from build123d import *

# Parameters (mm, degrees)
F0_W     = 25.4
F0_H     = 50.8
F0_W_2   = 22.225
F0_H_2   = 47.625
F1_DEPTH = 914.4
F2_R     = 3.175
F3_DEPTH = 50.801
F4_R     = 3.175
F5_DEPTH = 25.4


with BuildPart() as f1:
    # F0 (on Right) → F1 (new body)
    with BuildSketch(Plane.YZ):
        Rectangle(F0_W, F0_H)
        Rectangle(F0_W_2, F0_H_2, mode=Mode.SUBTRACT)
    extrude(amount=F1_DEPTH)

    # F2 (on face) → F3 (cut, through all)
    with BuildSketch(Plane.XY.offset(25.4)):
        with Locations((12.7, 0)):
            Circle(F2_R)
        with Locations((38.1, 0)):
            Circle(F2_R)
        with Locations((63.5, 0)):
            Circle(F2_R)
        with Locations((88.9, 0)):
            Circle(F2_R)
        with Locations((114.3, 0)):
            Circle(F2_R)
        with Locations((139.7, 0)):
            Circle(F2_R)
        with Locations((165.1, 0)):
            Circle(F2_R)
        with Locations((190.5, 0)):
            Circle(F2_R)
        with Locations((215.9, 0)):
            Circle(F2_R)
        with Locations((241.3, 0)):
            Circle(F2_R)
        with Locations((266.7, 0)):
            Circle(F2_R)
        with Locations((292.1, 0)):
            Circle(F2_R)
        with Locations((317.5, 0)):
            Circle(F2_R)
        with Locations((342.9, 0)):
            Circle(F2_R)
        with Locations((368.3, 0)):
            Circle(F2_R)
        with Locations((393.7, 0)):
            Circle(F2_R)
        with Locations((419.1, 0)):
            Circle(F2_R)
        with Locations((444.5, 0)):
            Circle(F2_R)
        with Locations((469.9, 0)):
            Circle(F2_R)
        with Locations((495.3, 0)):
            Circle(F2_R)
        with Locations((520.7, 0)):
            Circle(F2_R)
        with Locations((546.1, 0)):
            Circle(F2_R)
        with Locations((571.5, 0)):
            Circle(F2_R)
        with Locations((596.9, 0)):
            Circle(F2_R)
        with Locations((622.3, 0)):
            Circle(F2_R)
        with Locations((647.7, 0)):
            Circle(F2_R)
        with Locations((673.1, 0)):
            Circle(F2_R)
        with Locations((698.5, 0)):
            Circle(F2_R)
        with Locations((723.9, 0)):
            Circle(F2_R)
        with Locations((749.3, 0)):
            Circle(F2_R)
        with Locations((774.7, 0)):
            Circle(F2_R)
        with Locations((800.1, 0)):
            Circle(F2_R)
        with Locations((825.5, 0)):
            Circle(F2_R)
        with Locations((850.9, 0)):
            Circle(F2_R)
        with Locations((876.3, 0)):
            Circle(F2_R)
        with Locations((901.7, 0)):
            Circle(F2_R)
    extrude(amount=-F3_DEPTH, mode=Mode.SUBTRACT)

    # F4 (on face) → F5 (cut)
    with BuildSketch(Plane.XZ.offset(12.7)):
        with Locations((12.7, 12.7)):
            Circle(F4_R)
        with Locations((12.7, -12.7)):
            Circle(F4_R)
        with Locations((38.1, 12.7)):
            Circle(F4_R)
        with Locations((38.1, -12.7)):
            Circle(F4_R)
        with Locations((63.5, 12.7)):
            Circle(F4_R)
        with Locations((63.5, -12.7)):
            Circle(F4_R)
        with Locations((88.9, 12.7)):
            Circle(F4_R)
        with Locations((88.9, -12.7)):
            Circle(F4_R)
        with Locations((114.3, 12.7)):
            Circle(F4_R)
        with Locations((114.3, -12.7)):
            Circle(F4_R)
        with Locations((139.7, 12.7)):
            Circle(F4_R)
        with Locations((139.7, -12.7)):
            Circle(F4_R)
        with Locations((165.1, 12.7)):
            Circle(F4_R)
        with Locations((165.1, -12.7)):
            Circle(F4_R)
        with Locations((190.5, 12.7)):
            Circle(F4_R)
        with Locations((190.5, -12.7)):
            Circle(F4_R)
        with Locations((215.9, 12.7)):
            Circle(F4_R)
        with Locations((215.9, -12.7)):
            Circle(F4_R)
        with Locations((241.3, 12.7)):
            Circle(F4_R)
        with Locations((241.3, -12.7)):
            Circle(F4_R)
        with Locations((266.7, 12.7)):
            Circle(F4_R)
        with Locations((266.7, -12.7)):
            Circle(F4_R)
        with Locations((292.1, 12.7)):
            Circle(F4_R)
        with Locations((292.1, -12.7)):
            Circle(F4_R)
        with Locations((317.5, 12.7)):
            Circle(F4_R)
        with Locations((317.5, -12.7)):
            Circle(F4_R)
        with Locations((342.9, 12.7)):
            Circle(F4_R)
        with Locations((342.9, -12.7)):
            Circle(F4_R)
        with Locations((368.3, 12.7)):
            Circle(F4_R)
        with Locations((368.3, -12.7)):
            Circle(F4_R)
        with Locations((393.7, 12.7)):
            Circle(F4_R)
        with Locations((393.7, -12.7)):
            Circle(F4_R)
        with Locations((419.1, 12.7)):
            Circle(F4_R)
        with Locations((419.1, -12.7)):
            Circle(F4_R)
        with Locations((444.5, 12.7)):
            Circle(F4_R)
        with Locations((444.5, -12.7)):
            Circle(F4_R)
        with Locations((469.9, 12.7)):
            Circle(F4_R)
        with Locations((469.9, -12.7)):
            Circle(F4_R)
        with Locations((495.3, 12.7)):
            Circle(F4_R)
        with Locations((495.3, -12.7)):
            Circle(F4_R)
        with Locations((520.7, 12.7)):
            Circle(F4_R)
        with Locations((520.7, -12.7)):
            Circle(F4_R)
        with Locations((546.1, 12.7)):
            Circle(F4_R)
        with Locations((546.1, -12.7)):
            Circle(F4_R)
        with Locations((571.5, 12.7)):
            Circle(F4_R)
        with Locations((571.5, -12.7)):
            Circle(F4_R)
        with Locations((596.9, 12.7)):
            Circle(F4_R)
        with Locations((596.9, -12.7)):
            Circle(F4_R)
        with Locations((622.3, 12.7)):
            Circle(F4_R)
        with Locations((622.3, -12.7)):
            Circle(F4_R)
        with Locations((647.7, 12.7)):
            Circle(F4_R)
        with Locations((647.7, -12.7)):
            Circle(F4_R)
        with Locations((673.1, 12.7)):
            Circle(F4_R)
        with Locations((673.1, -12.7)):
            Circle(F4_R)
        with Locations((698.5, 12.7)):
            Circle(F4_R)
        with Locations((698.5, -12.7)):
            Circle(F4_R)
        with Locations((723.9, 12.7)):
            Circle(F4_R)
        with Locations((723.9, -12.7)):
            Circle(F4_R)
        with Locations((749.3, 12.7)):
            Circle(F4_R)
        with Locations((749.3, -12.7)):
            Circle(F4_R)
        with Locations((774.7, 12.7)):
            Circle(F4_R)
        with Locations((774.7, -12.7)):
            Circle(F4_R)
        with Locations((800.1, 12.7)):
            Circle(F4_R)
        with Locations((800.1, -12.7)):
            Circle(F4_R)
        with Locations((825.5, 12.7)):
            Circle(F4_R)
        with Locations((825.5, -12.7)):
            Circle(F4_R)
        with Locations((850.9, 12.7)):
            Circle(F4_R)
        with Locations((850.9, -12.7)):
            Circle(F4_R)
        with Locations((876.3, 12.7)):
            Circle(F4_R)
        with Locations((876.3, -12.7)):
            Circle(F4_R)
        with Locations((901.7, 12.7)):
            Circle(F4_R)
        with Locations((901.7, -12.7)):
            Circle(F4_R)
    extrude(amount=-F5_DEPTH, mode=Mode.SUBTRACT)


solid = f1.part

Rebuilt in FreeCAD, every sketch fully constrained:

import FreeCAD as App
import Part
import Sketcher

V = App.Vector
Q = App.Units.Quantity


def add_polygon(sketch, points):
    """Adds a closed chain of lines whose ends are joined by coincident constraints."""
    first, n = sketch.GeometryCount, len(points)
    for a, b in zip(points, points[1:] + points[:1]):
        sketch.addGeometry(Part.LineSegment(App.Vector(*a, 0), App.Vector(*b, 0)), False)
    for i in range(n):
        sketch.addConstraint(Sketcher.Constraint("Coincident", first + i, 2, first + (i + 1) % n, 1))

doc = App.newDocument("Part")
body = doc.addObject("PartDesign::Body", "Body")

# Sketch on YZ plane
sketch1 = doc.addObject("Sketcher::SketchObject", "Sketch")
body.addObject(sketch1)
sketch1.AttachmentSupport = (doc.YZ_Plane, [""])
sketch1.MapMode = "FlatFace"
add_polygon(sketch1, [(-12.7, 25.4), (-12.7, -25.4), (12.7, -25.4), (12.7, 25.4)])  # lines 0-3
add_polygon(sketch1, [(11.1125, -23.8125), (-11.1125, -23.8125), (-11.1125, 23.8125), (11.1125, 23.8125)])  # lines 4-7
sketch1.addConstraint([
    Sketcher.Constraint("Vertical", 0),
    Sketcher.Constraint("Horizontal", 1),
    Sketcher.Constraint("Vertical", 2),
    Sketcher.Constraint("Horizontal", 3),
    Sketcher.Constraint("Horizontal", 4),
    Sketcher.Constraint("Vertical", 5),
    Sketcher.Constraint("Horizontal", 6),
    Sketcher.Constraint("Vertical", 7),
    Sketcher.Constraint("Symmetric", 0, 2, 2, 2, -1, 1),
    Sketcher.Constraint("Symmetric", 4, 2, 6, 2, -1, 1),
    Sketcher.Constraint("DistanceX", 1, 1, 1, 2, Q("1 in")),
    Sketcher.Constraint("DistanceY", 0, 2, 0, 1, Q("2 in")),
    Sketcher.Constraint("DistanceX", 4, 2, 4, 1, Q("0.875 in")),
    Sketcher.Constraint("DistanceY", 5, 1, 5, 2, Q("1.875 in")),
])
pad1 = doc.addObject("PartDesign::Pad", "Pad")
body.addObject(pad1)
pad1.Profile = sketch1
pad1.Length = Q("36 in")

# Sketch on XY plane
sketch2 = doc.addObject("Sketcher::SketchObject", "Sketch001")
body.addObject(sketch2)
sketch2.AttachmentSupport = (doc.XY_Plane, [""])
sketch2.MapMode = "FlatFace"
sketch2.AttachmentOffset = App.Placement(V(0, 0, 1 * 25.4), App.Rotation())
sketch2.addGeometry([
    Part.Circle(V(12.7, 0, 0), V(0, 0, 1), 3.175),  # 0
    Part.Circle(V(38.1, 0, 0), V(0, 0, 1), 3.175),  # 1
    Part.Circle(V(63.5, 0, 0), V(0, 0, 1), 3.175),  # 2
    Part.Circle(V(88.9, 0, 0), V(0, 0, 1), 3.175),  # 3
    Part.Circle(V(114.3, 0, 0), V(0, 0, 1), 3.175),  # 4
    Part.Circle(V(139.7, 0, 0), V(0, 0, 1), 3.175),  # 5
    Part.Circle(V(165.1, 0, 0), V(0, 0, 1), 3.175),  # 6
    Part.Circle(V(190.5, 0, 0), V(0, 0, 1), 3.175),  # 7
    Part.Circle(V(215.9, 0, 0), V(0, 0, 1), 3.175),  # 8
    Part.Circle(V(241.3, 0, 0), V(0, 0, 1), 3.175),  # 9
    Part.Circle(V(266.7, 0, 0), V(0, 0, 1), 3.175),  # 10
    Part.Circle(V(292.1, 0, 0), V(0, 0, 1), 3.175),  # 11
    Part.Circle(V(317.5, 0, 0), V(0, 0, 1), 3.175),  # 12
    Part.Circle(V(342.9, 0, 0), V(0, 0, 1), 3.175),  # 13
    Part.Circle(V(368.3, 0, 0), V(0, 0, 1), 3.175),  # 14
    Part.Circle(V(393.7, 0, 0), V(0, 0, 1), 3.175),  # 15
    Part.Circle(V(419.1, 0, 0), V(0, 0, 1), 3.175),  # 16
    Part.Circle(V(444.5, 0, 0), V(0, 0, 1), 3.175),  # 17
    Part.Circle(V(469.9, 0, 0), V(0, 0, 1), 3.175),  # 18
    Part.Circle(V(495.3, 0, 0), V(0, 0, 1), 3.175),  # 19
    Part.Circle(V(520.7, 0, 0), V(0, 0, 1), 3.175),  # 20
    Part.Circle(V(546.1, 0, 0), V(0, 0, 1), 3.175),  # 21
    Part.Circle(V(571.5, 0, 0), V(0, 0, 1), 3.175),  # 22
    Part.Circle(V(596.9, 0, 0), V(0, 0, 1), 3.175),  # 23
    Part.Circle(V(622.3, 0, 0), V(0, 0, 1), 3.175),  # 24
    Part.Circle(V(647.7, 0, 0), V(0, 0, 1), 3.175),  # 25
    Part.Circle(V(673.1, 0, 0), V(0, 0, 1), 3.175),  # 26
    Part.Circle(V(698.5, 0, 0), V(0, 0, 1), 3.175),  # 27
    Part.Circle(V(723.9, 0, 0), V(0, 0, 1), 3.175),  # 28
    Part.Circle(V(749.3, 0, 0), V(0, 0, 1), 3.175),  # 29
    Part.Circle(V(774.7, 0, 0), V(0, 0, 1), 3.175),  # 30
    Part.Circle(V(800.1, 0, 0), V(0, 0, 1), 3.175),  # 31
    Part.Circle(V(825.5, 0, 0), V(0, 0, 1), 3.175),  # 32
    Part.Circle(V(850.9, 0, 0), V(0, 0, 1), 3.175),  # 33
    Part.Circle(V(876.3, 0, 0), V(0, 0, 1), 3.175),  # 34
    Part.Circle(V(901.7, 0, 0), V(0, 0, 1), 3.175),  # 35
], False)
sketch2.addConstraint([
    Sketcher.Constraint("Equal", 0, 1),
    Sketcher.Constraint("Equal", 1, 2),
    Sketcher.Constraint("Equal", 2, 3),
    Sketcher.Constraint("Equal", 3, 4),
    Sketcher.Constraint("Equal", 4, 5),
    Sketcher.Constraint("Equal", 5, 6),
    Sketcher.Constraint("Equal", 6, 7),
    Sketcher.Constraint("Equal", 7, 8),
    Sketcher.Constraint("Equal", 8, 9),
    Sketcher.Constraint("Equal", 9, 10),
    Sketcher.Constraint("Equal", 10, 11),
    Sketcher.Constraint("Equal", 11, 12),
    Sketcher.Constraint("Equal", 12, 13),
    Sketcher.Constraint("Equal", 13, 14),
    Sketcher.Constraint("Equal", 14, 15),
    Sketcher.Constraint("Equal", 15, 16),
    Sketcher.Constraint("Equal", 16, 17),
    Sketcher.Constraint("Equal", 17, 18),
    Sketcher.Constraint("Equal", 18, 19),
    Sketcher.Constraint("Equal", 19, 20),
    Sketcher.Constraint("Equal", 20, 21),
    Sketcher.Constraint("Equal", 21, 22),
    Sketcher.Constraint("Equal", 22, 23),
    Sketcher.Constraint("Equal", 23, 24),
    Sketcher.Constraint("Equal", 24, 25),
    Sketcher.Constraint("Equal", 25, 26),
    Sketcher.Constraint("Equal", 26, 27),
    Sketcher.Constraint("Equal", 27, 28),
    Sketcher.Constraint("Equal", 28, 29),
    Sketcher.Constraint("Equal", 29, 30),
    Sketcher.Constraint("Equal", 30, 31),
    Sketcher.Constraint("Equal", 31, 32),
    Sketcher.Constraint("Equal", 32, 33),
    Sketcher.Constraint("Equal", 33, 34),
    Sketcher.Constraint("Equal", 34, 35),
    Sketcher.Constraint("PointOnObject", 0, 3, -1),
    Sketcher.Constraint("PointOnObject", 1, 3, -1),
    Sketcher.Constraint("PointOnObject", 2, 3, -1),
    Sketcher.Constraint("PointOnObject", 3, 3, -1),
    Sketcher.Constraint("PointOnObject", 4, 3, -1),
    Sketcher.Constraint("PointOnObject", 5, 3, -1),
    Sketcher.Constraint("PointOnObject", 6, 3, -1),
    Sketcher.Constraint("PointOnObject", 7, 3, -1),
    Sketcher.Constraint("PointOnObject", 8, 3, -1),
    Sketcher.Constraint("PointOnObject", 9, 3, -1),
    Sketcher.Constraint("PointOnObject", 10, 3, -1),
    Sketcher.Constraint("PointOnObject", 11, 3, -1),
    Sketcher.Constraint("PointOnObject", 12, 3, -1),
    Sketcher.Constraint("PointOnObject", 13, 3, -1),
    Sketcher.Constraint("PointOnObject", 14, 3, -1),
    Sketcher.Constraint("PointOnObject", 15, 3, -1),
    Sketcher.Constraint("PointOnObject", 16, 3, -1),
    Sketcher.Constraint("PointOnObject", 17, 3, -1),
    Sketcher.Constraint("PointOnObject", 18, 3, -1),
    Sketcher.Constraint("PointOnObject", 19, 3, -1),
    Sketcher.Constraint("PointOnObject", 20, 3, -1),
    Sketcher.Constraint("PointOnObject", 21, 3, -1),
    Sketcher.Constraint("PointOnObject", 22, 3, -1),
    Sketcher.Constraint("PointOnObject", 23, 3, -1),
    Sketcher.Constraint("PointOnObject", 24, 3, -1),
    Sketcher.Constraint("PointOnObject", 25, 3, -1),
    Sketcher.Constraint("PointOnObject", 26, 3, -1),
    Sketcher.Constraint("PointOnObject", 27, 3, -1),
    Sketcher.Constraint("PointOnObject", 28, 3, -1),
    Sketcher.Constraint("PointOnObject", 29, 3, -1),
    Sketcher.Constraint("PointOnObject", 30, 3, -1),
    Sketcher.Constraint("PointOnObject", 31, 3, -1),
    Sketcher.Constraint("PointOnObject", 32, 3, -1),
    Sketcher.Constraint("PointOnObject", 33, 3, -1),
    Sketcher.Constraint("PointOnObject", 34, 3, -1),
    Sketcher.Constraint("PointOnObject", 35, 3, -1),
    Sketcher.Constraint("Diameter", 0, Q("0.25 in")),
    Sketcher.Constraint("DistanceX", 0, 3, 1, 3, Q("1 in")),
    Sketcher.Constraint("DistanceX", 1, 3, 2, 3, Q("1 in")),
    Sketcher.Constraint("DistanceX", 2, 3, 3, 3, Q("1 in")),
    Sketcher.Constraint("DistanceX", 3, 3, 4, 3, Q("1 in")),
    Sketcher.Constraint("DistanceX", 4, 3, 5, 3, Q("1 in")),
    Sketcher.Constraint("DistanceX", 5, 3, 6, 3, Q("1 in")),
    Sketcher.Constraint("DistanceX", 6, 3, 7, 3, Q("1 in")),
    Sketcher.Constraint("DistanceX", 7, 3, 8, 3, Q("1 in")),
    Sketcher.Constraint("DistanceX", 8, 3, 9, 3, Q("1 in")),
    Sketcher.Constraint("DistanceX", 9, 3, 10, 3, Q("1 in")),
    Sketcher.Constraint("DistanceX", 10, 3, 11, 3, Q("1 in")),
    Sketcher.Constraint("DistanceX", 11, 3, 12, 3, Q("1 in")),
    Sketcher.Constraint("DistanceX", 12, 3, 13, 3, Q("1 in")),
    Sketcher.Constraint("DistanceX", 13, 3, 14, 3, Q("1 in")),
    Sketcher.Constraint("DistanceX", 14, 3, 15, 3, Q("1 in")),
    Sketcher.Constraint("DistanceX", 15, 3, 16, 3, Q("1 in")),
    Sketcher.Constraint("DistanceX", 16, 3, 17, 3, Q("1 in")),
    Sketcher.Constraint("DistanceX", 17, 3, 18, 3, Q("1 in")),
    Sketcher.Constraint("DistanceX", 18, 3, 19, 3, Q("1 in")),
    Sketcher.Constraint("DistanceX", 19, 3, 20, 3, Q("1 in")),
    Sketcher.Constraint("DistanceX", 20, 3, 21, 3, Q("1 in")),
    Sketcher.Constraint("DistanceX", 21, 3, 22, 3, Q("1 in")),
    Sketcher.Constraint("DistanceX", 22, 3, 23, 3, Q("1 in")),
    Sketcher.Constraint("DistanceX", 23, 3, 24, 3, Q("1 in")),
    Sketcher.Constraint("DistanceX", 24, 3, 25, 3, Q("1 in")),
    Sketcher.Constraint("DistanceX", 25, 3, 26, 3, Q("1 in")),
    Sketcher.Constraint("DistanceX", 26, 3, 27, 3, Q("1 in")),
    Sketcher.Constraint("DistanceX", 27, 3, 28, 3, Q("1 in")),
    Sketcher.Constraint("DistanceX", 28, 3, 29, 3, Q("1 in")),
    Sketcher.Constraint("DistanceX", 29, 3, 30, 3, Q("1 in")),
    Sketcher.Constraint("DistanceX", 30, 3, 31, 3, Q("1 in")),
    Sketcher.Constraint("DistanceX", 31, 3, 32, 3, Q("1 in")),
    Sketcher.Constraint("DistanceX", 32, 3, 33, 3, Q("1 in")),
    Sketcher.Constraint("DistanceX", 33, 3, 34, 3, Q("1 in")),
    Sketcher.Constraint("DistanceX", 34, 3, 35, 3, Q("1 in")),
    Sketcher.Constraint("DistanceX", -1, 1, 0, 3, Q("0.5 in")),
])
pocket1 = doc.addObject("PartDesign::Pocket", "Pocket")
body.addObject(pocket1)
pocket1.Profile = sketch2
pocket1.Type = "ThroughAll"

# Sketch on XZ plane
sketch3 = doc.addObject("Sketcher::SketchObject", "Sketch002")
body.addObject(sketch3)
sketch3.AttachmentSupport = (doc.XZ_Plane, [""])
sketch3.MapMode = "FlatFace"
sketch3.AttachmentOffset = App.Placement(V(0, 0, 0.5 * 25.4), App.Rotation())
sketch3.addGeometry([
    Part.Circle(V(12.7, 12.7, 0), V(0, 0, 1), 3.175),  # 0
    Part.Circle(V(12.7, -12.7, 0), V(0, 0, 1), 3.175),  # 1
    Part.Circle(V(38.1, 12.7, 0), V(0, 0, 1), 3.175),  # 2
    Part.Circle(V(38.1, -12.7, 0), V(0, 0, 1), 3.175),  # 3
    Part.Circle(V(63.5, 12.7, 0), V(0, 0, 1), 3.175),  # 4
    Part.Circle(V(63.5, -12.7, 0), V(0, 0, 1), 3.175),  # 5
    Part.Circle(V(88.9, 12.7, 0), V(0, 0, 1), 3.175),  # 6
    Part.Circle(V(88.9, -12.7, 0), V(0, 0, 1), 3.175),  # 7
    Part.Circle(V(114.3, 12.7, 0), V(0, 0, 1), 3.175),  # 8
    Part.Circle(V(114.3, -12.7, 0), V(0, 0, 1), 3.175),  # 9
    Part.Circle(V(139.7, 12.7, 0), V(0, 0, 1), 3.175),  # 10
    Part.Circle(V(139.7, -12.7, 0), V(0, 0, 1), 3.175),  # 11
    Part.Circle(V(165.1, 12.7, 0), V(0, 0, 1), 3.175),  # 12
    Part.Circle(V(165.1, -12.7, 0), V(0, 0, 1), 3.175),  # 13
    Part.Circle(V(190.5, 12.7, 0), V(0, 0, 1), 3.175),  # 14
    Part.Circle(V(190.5, -12.7, 0), V(0, 0, 1), 3.175),  # 15
    Part.Circle(V(215.9, 12.7, 0), V(0, 0, 1), 3.175),  # 16
    Part.Circle(V(215.9, -12.7, 0), V(0, 0, 1), 3.175),  # 17
    Part.Circle(V(241.3, 12.7, 0), V(0, 0, 1), 3.175),  # 18
    Part.Circle(V(241.3, -12.7, 0), V(0, 0, 1), 3.175),  # 19
    Part.Circle(V(266.7, 12.7, 0), V(0, 0, 1), 3.175),  # 20
    Part.Circle(V(266.7, -12.7, 0), V(0, 0, 1), 3.175),  # 21
    Part.Circle(V(292.1, 12.7, 0), V(0, 0, 1), 3.175),  # 22
    Part.Circle(V(292.1, -12.7, 0), V(0, 0, 1), 3.175),  # 23
    Part.Circle(V(317.5, 12.7, 0), V(0, 0, 1), 3.175),  # 24
    Part.Circle(V(317.5, -12.7, 0), V(0, 0, 1), 3.175),  # 25
    Part.Circle(V(342.9, 12.7, 0), V(0, 0, 1), 3.175),  # 26
    Part.Circle(V(342.9, -12.7, 0), V(0, 0, 1), 3.175),  # 27
    Part.Circle(V(368.3, 12.7, 0), V(0, 0, 1), 3.175),  # 28
    Part.Circle(V(368.3, -12.7, 0), V(0, 0, 1), 3.175),  # 29
    Part.Circle(V(393.7, 12.7, 0), V(0, 0, 1), 3.175),  # 30
    Part.Circle(V(393.7, -12.7, 0), V(0, 0, 1), 3.175),  # 31
    Part.Circle(V(419.1, 12.7, 0), V(0, 0, 1), 3.175),  # 32
    Part.Circle(V(419.1, -12.7, 0), V(0, 0, 1), 3.175),  # 33
    Part.Circle(V(444.5, 12.7, 0), V(0, 0, 1), 3.175),  # 34
    Part.Circle(V(444.5, -12.7, 0), V(0, 0, 1), 3.175),  # 35
    Part.Circle(V(469.9, 12.7, 0), V(0, 0, 1), 3.175),  # 36
    Part.Circle(V(469.9, -12.7, 0), V(0, 0, 1), 3.175),  # 37
    Part.Circle(V(495.3, 12.7, 0), V(0, 0, 1), 3.175),  # 38
    Part.Circle(V(495.3, -12.7, 0), V(0, 0, 1), 3.175),  # 39
    Part.Circle(V(520.7, 12.7, 0), V(0, 0, 1), 3.175),  # 40
    Part.Circle(V(520.7, -12.7, 0), V(0, 0, 1), 3.175),  # 41
    Part.Circle(V(546.1, 12.7, 0), V(0, 0, 1), 3.175),  # 42
    Part.Circle(V(546.1, -12.7, 0), V(0, 0, 1), 3.175),  # 43
    Part.Circle(V(571.5, 12.7, 0), V(0, 0, 1), 3.175),  # 44
    Part.Circle(V(571.5, -12.7, 0), V(0, 0, 1), 3.175),  # 45
    Part.Circle(V(596.9, 12.7, 0), V(0, 0, 1), 3.175),  # 46
    Part.Circle(V(596.9, -12.7, 0), V(0, 0, 1), 3.175),  # 47
    Part.Circle(V(622.3, 12.7, 0), V(0, 0, 1), 3.175),  # 48
    Part.Circle(V(622.3, -12.7, 0), V(0, 0, 1), 3.175),  # 49
    Part.Circle(V(647.7, 12.7, 0), V(0, 0, 1), 3.175),  # 50
    Part.Circle(V(647.7, -12.7, 0), V(0, 0, 1), 3.175),  # 51
    Part.Circle(V(673.1, 12.7, 0), V(0, 0, 1), 3.175),  # 52
    Part.Circle(V(673.1, -12.7, 0), V(0, 0, 1), 3.175),  # 53
    Part.Circle(V(698.5, 12.7, 0), V(0, 0, 1), 3.175),  # 54
    Part.Circle(V(698.5, -12.7, 0), V(0, 0, 1), 3.175),  # 55
    Part.Circle(V(723.9, 12.7, 0), V(0, 0, 1), 3.175),  # 56
    Part.Circle(V(723.9, -12.7, 0), V(0, 0, 1), 3.175),  # 57
    Part.Circle(V(749.3, 12.7, 0), V(0, 0, 1), 3.175),  # 58
    Part.Circle(V(749.3, -12.7, 0), V(0, 0, 1), 3.175),  # 59
    Part.Circle(V(774.7, 12.7, 0), V(0, 0, 1), 3.175),  # 60
    Part.Circle(V(774.7, -12.7, 0), V(0, 0, 1), 3.175),  # 61
    Part.Circle(V(800.1, 12.7, 0), V(0, 0, 1), 3.175),  # 62
    Part.Circle(V(800.1, -12.7, 0), V(0, 0, 1), 3.175),  # 63
    Part.Circle(V(825.5, 12.7, 0), V(0, 0, 1), 3.175),  # 64
    Part.Circle(V(825.5, -12.7, 0), V(0, 0, 1), 3.175),  # 65
    Part.Circle(V(850.9, 12.7, 0), V(0, 0, 1), 3.175),  # 66
    Part.Circle(V(850.9, -12.7, 0), V(0, 0, 1), 3.175),  # 67
    Part.Circle(V(876.3, 12.7, 0), V(0, 0, 1), 3.175),  # 68
    Part.Circle(V(876.3, -12.7, 0), V(0, 0, 1), 3.175),  # 69
    Part.Circle(V(901.7, 12.7, 0), V(0, 0, 1), 3.175),  # 70
    Part.Circle(V(901.7, -12.7, 0), V(0, 0, 1), 3.175),  # 71
], False)
sketch3.addConstraint([
    Sketcher.Constraint("Equal", 0, 1),
    Sketcher.Constraint("Equal", 1, 2),
    Sketcher.Constraint("Equal", 2, 3),
    Sketcher.Constraint("Equal", 3, 4),
    Sketcher.Constraint("Equal", 4, 5),
    Sketcher.Constraint("Equal", 5, 6),
    Sketcher.Constraint("Equal", 6, 7),
    Sketcher.Constraint("Equal", 7, 8),
    Sketcher.Constraint("Equal", 8, 9),
    Sketcher.Constraint("Equal", 9, 10),
    Sketcher.Constraint("Equal", 10, 11),
    Sketcher.Constraint("Equal", 11, 12),
    Sketcher.Constraint("Equal", 12, 13),
    Sketcher.Constraint("Equal", 13, 14),
    Sketcher.Constraint("Equal", 14, 15),
    Sketcher.Constraint("Equal", 15, 16),
    Sketcher.Constraint("Equal", 16, 17),
    Sketcher.Constraint("Equal", 17, 18),
    Sketcher.Constraint("Equal", 18, 19),
    Sketcher.Constraint("Equal", 19, 20),
    Sketcher.Constraint("Equal", 20, 21),
    Sketcher.Constraint("Equal", 21, 22),
    Sketcher.Constraint("Equal", 22, 23),
    Sketcher.Constraint("Equal", 23, 24),
    Sketcher.Constraint("Equal", 24, 25),
    Sketcher.Constraint("Equal", 25, 26),
    Sketcher.Constraint("Equal", 26, 27),
    Sketcher.Constraint("Equal", 27, 28),
    Sketcher.Constraint("Equal", 28, 29),
    Sketcher.Constraint("Equal", 29, 30),
    Sketcher.Constraint("Equal", 30, 31),
    Sketcher.Constraint("Equal", 31, 32),
    Sketcher.Constraint("Equal", 32, 33),
    Sketcher.Constraint("Equal", 33, 34),
    Sketcher.Constraint("Equal", 34, 35),
    Sketcher.Constraint("Equal", 35, 36),
    Sketcher.Constraint("Equal", 36, 37),
    Sketcher.Constraint("Equal", 37, 38),
    Sketcher.Constraint("Equal", 38, 39),
    Sketcher.Constraint("Equal", 39, 40),
    Sketcher.Constraint("Equal", 40, 41),
    Sketcher.Constraint("Equal", 41, 42),
    Sketcher.Constraint("Equal", 42, 43),
    Sketcher.Constraint("Equal", 43, 44),
    Sketcher.Constraint("Equal", 44, 45),
    Sketcher.Constraint("Equal", 45, 46),
    Sketcher.Constraint("Equal", 46, 47),
    Sketcher.Constraint("Equal", 47, 48),
    Sketcher.Constraint("Equal", 48, 49),
    Sketcher.Constraint("Equal", 49, 50),
    Sketcher.Constraint("Equal", 50, 51),
    Sketcher.Constraint("Equal", 51, 52),
    Sketcher.Constraint("Equal", 52, 53),
    Sketcher.Constraint("Equal", 53, 54),
    Sketcher.Constraint("Equal", 54, 55),
    Sketcher.Constraint("Equal", 55, 56),
    Sketcher.Constraint("Equal", 56, 57),
    Sketcher.Constraint("Equal", 57, 58),
    Sketcher.Constraint("Equal", 58, 59),
    Sketcher.Constraint("Equal", 59, 60),
    Sketcher.Constraint("Equal", 60, 61),
    Sketcher.Constraint("Equal", 61, 62),
    Sketcher.Constraint("Equal", 62, 63),
    Sketcher.Constraint("Equal", 63, 64),
    Sketcher.Constraint("Equal", 64, 65),
    Sketcher.Constraint("Equal", 65, 66),
    Sketcher.Constraint("Equal", 66, 67),
    Sketcher.Constraint("Equal", 67, 68),
    Sketcher.Constraint("Equal", 68, 69),
    Sketcher.Constraint("Equal", 69, 70),
    Sketcher.Constraint("Equal", 70, 71),
    Sketcher.Constraint("Symmetric", 0, 3, 1, 3, -1),
    Sketcher.Constraint("Symmetric", 2, 3, 3, 3, -1),
    Sketcher.Constraint("Symmetric", 4, 3, 5, 3, -1),
    Sketcher.Constraint("Symmetric", 6, 3, 7, 3, -1),
    Sketcher.Constraint("Symmetric", 8, 3, 9, 3, -1),
    Sketcher.Constraint("Symmetric", 10, 3, 11, 3, -1),
    Sketcher.Constraint("Symmetric", 12, 3, 13, 3, -1),
    Sketcher.Constraint("Symmetric", 14, 3, 15, 3, -1),
    Sketcher.Constraint("Symmetric", 16, 3, 17, 3, -1),
    Sketcher.Constraint("Symmetric", 18, 3, 19, 3, -1),
    Sketcher.Constraint("Symmetric", 20, 3, 21, 3, -1),
    Sketcher.Constraint("Symmetric", 22, 3, 23, 3, -1),
    Sketcher.Constraint("Symmetric", 24, 3, 25, 3, -1),
    Sketcher.Constraint("Symmetric", 26, 3, 27, 3, -1),
    Sketcher.Constraint("Symmetric", 28, 3, 29, 3, -1),
    Sketcher.Constraint("Symmetric", 30, 3, 31, 3, -1),
    Sketcher.Constraint("Symmetric", 32, 3, 33, 3, -1),
    Sketcher.Constraint("Symmetric", 34, 3, 35, 3, -1),
    Sketcher.Constraint("Symmetric", 36, 3, 37, 3, -1),
    Sketcher.Constraint("Symmetric", 38, 3, 39, 3, -1),
    Sketcher.Constraint("Symmetric", 40, 3, 41, 3, -1),
    Sketcher.Constraint("Symmetric", 42, 3, 43, 3, -1),
    Sketcher.Constraint("Symmetric", 44, 3, 45, 3, -1),
    Sketcher.Constraint("Symmetric", 46, 3, 47, 3, -1),
    Sketcher.Constraint("Symmetric", 48, 3, 49, 3, -1),
    Sketcher.Constraint("Symmetric", 50, 3, 51, 3, -1),
    Sketcher.Constraint("Symmetric", 52, 3, 53, 3, -1),
    Sketcher.Constraint("Symmetric", 54, 3, 55, 3, -1),
    Sketcher.Constraint("Symmetric", 56, 3, 57, 3, -1),
    Sketcher.Constraint("Symmetric", 58, 3, 59, 3, -1),
    Sketcher.Constraint("Symmetric", 60, 3, 61, 3, -1),
    Sketcher.Constraint("Symmetric", 62, 3, 63, 3, -1),
    Sketcher.Constraint("Symmetric", 64, 3, 65, 3, -1),
    Sketcher.Constraint("Symmetric", 66, 3, 67, 3, -1),
    Sketcher.Constraint("Symmetric", 68, 3, 69, 3, -1),
    Sketcher.Constraint("Symmetric", 70, 3, 71, 3, -1),
    Sketcher.Constraint("Horizontal", 0, 3, 2, 3),
    Sketcher.Constraint("Horizontal", 2, 3, 4, 3),
    Sketcher.Constraint("Horizontal", 4, 3, 6, 3),
    Sketcher.Constraint("Horizontal", 6, 3, 8, 3),
    Sketcher.Constraint("Horizontal", 8, 3, 10, 3),
    Sketcher.Constraint("Horizontal", 10, 3, 12, 3),
    Sketcher.Constraint("Horizontal", 12, 3, 14, 3),
    Sketcher.Constraint("Horizontal", 14, 3, 16, 3),
    Sketcher.Constraint("Horizontal", 16, 3, 18, 3),
    Sketcher.Constraint("Horizontal", 18, 3, 20, 3),
    Sketcher.Constraint("Horizontal", 20, 3, 22, 3),
    Sketcher.Constraint("Horizontal", 22, 3, 24, 3),
    Sketcher.Constraint("Horizontal", 24, 3, 26, 3),
    Sketcher.Constraint("Horizontal", 26, 3, 28, 3),
    Sketcher.Constraint("Horizontal", 28, 3, 30, 3),
    Sketcher.Constraint("Horizontal", 30, 3, 32, 3),
    Sketcher.Constraint("Horizontal", 32, 3, 34, 3),
    Sketcher.Constraint("Horizontal", 34, 3, 36, 3),
    Sketcher.Constraint("Horizontal", 36, 3, 38, 3),
    Sketcher.Constraint("Horizontal", 38, 3, 40, 3),
    Sketcher.Constraint("Horizontal", 40, 3, 42, 3),
    Sketcher.Constraint("Horizontal", 42, 3, 44, 3),
    Sketcher.Constraint("Horizontal", 44, 3, 46, 3),
    Sketcher.Constraint("Horizontal", 46, 3, 48, 3),
    Sketcher.Constraint("Horizontal", 48, 3, 50, 3),
    Sketcher.Constraint("Horizontal", 50, 3, 52, 3),
    Sketcher.Constraint("Horizontal", 52, 3, 54, 3),
    Sketcher.Constraint("Horizontal", 54, 3, 56, 3),
    Sketcher.Constraint("Horizontal", 56, 3, 58, 3),
    Sketcher.Constraint("Horizontal", 58, 3, 60, 3),
    Sketcher.Constraint("Horizontal", 60, 3, 62, 3),
    Sketcher.Constraint("Horizontal", 62, 3, 64, 3),
    Sketcher.Constraint("Horizontal", 64, 3, 66, 3),
    Sketcher.Constraint("Horizontal", 66, 3, 68, 3),
    Sketcher.Constraint("Horizontal", 68, 3, 70, 3),
    Sketcher.Constraint("Diameter", 0, Q("0.25 in")),
    Sketcher.Constraint("DistanceX", -1, 1, 0, 3, Q("0.5 in")),
    Sketcher.Constraint("DistanceY", -1, 1, 0, 3, Q("0.5 in")),
    Sketcher.Constraint("DistanceX", -1, 1, 2, 3, Q("1.5 in")),
    Sketcher.Constraint("DistanceX", -1, 1, 4, 3, Q("2.5 in")),
    Sketcher.Constraint("DistanceX", -1, 1, 6, 3, Q("3.5 in")),
    Sketcher.Constraint("DistanceX", -1, 1, 8, 3, Q("4.5 in")),
    Sketcher.Constraint("DistanceX", -1, 1, 10, 3, Q("5.5 in")),
    Sketcher.Constraint("DistanceX", -1, 1, 12, 3, Q("6.5 in")),
    Sketcher.Constraint("DistanceX", -1, 1, 14, 3, Q("7.5 in")),
    Sketcher.Constraint("DistanceX", -1, 1, 16, 3, Q("8.5 in")),
    Sketcher.Constraint("DistanceX", -1, 1, 18, 3, Q("9.5 in")),
    Sketcher.Constraint("DistanceX", -1, 1, 20, 3, Q("10.5 in")),
    Sketcher.Constraint("DistanceX", -1, 1, 22, 3, Q("11.5 in")),
    Sketcher.Constraint("DistanceX", -1, 1, 24, 3, Q("12.5 in")),
    Sketcher.Constraint("DistanceX", -1, 1, 26, 3, Q("13.5 in")),
    Sketcher.Constraint("DistanceX", -1, 1, 28, 3, Q("14.5 in")),
    Sketcher.Constraint("DistanceX", -1, 1, 30, 3, Q("15.5 in")),
    Sketcher.Constraint("DistanceX", -1, 1, 32, 3, Q("16.5 in")),
    Sketcher.Constraint("DistanceX", -1, 1, 34, 3, Q("17.5 in")),
    Sketcher.Constraint("DistanceX", -1, 1, 36, 3, Q("18.5 in")),
    Sketcher.Constraint("DistanceX", -1, 1, 38, 3, Q("19.5 in")),
    Sketcher.Constraint("DistanceX", -1, 1, 40, 3, Q("20.5 in")),
    Sketcher.Constraint("DistanceX", -1, 1, 42, 3, Q("21.5 in")),
    Sketcher.Constraint("DistanceX", -1, 1, 44, 3, Q("22.5 in")),
    Sketcher.Constraint("DistanceX", -1, 1, 46, 3, Q("23.5 in")),
    Sketcher.Constraint("DistanceX", -1, 1, 48, 3, Q("24.5 in")),
    Sketcher.Constraint("DistanceX", -1, 1, 50, 3, Q("25.5 in")),
    Sketcher.Constraint("DistanceX", -1, 1, 52, 3, Q("26.5 in")),
    Sketcher.Constraint("DistanceX", -1, 1, 54, 3, Q("27.5 in")),
    Sketcher.Constraint("DistanceX", -1, 1, 56, 3, Q("28.5 in")),
    Sketcher.Constraint("DistanceX", -1, 1, 58, 3, Q("29.5 in")),
    Sketcher.Constraint("DistanceX", -1, 1, 60, 3, Q("30.5 in")),
    Sketcher.Constraint("DistanceX", -1, 1, 62, 3, Q("31.5 in")),
    Sketcher.Constraint("DistanceX", -1, 1, 64, 3, Q("32.5 in")),
    Sketcher.Constraint("DistanceX", -1, 1, 66, 3, Q("33.5 in")),
    Sketcher.Constraint("DistanceX", -1, 1, 68, 3, Q("34.5 in")),
    Sketcher.Constraint("DistanceX", -1, 1, 70, 3, Q("35.5 in")),
])
pocket2 = doc.addObject("PartDesign::Pocket", "Pocket001")
body.addObject(pocket2)
pocket2.Profile = sketch3
pocket2.Length = Q("1 in")

doc.recompute()
